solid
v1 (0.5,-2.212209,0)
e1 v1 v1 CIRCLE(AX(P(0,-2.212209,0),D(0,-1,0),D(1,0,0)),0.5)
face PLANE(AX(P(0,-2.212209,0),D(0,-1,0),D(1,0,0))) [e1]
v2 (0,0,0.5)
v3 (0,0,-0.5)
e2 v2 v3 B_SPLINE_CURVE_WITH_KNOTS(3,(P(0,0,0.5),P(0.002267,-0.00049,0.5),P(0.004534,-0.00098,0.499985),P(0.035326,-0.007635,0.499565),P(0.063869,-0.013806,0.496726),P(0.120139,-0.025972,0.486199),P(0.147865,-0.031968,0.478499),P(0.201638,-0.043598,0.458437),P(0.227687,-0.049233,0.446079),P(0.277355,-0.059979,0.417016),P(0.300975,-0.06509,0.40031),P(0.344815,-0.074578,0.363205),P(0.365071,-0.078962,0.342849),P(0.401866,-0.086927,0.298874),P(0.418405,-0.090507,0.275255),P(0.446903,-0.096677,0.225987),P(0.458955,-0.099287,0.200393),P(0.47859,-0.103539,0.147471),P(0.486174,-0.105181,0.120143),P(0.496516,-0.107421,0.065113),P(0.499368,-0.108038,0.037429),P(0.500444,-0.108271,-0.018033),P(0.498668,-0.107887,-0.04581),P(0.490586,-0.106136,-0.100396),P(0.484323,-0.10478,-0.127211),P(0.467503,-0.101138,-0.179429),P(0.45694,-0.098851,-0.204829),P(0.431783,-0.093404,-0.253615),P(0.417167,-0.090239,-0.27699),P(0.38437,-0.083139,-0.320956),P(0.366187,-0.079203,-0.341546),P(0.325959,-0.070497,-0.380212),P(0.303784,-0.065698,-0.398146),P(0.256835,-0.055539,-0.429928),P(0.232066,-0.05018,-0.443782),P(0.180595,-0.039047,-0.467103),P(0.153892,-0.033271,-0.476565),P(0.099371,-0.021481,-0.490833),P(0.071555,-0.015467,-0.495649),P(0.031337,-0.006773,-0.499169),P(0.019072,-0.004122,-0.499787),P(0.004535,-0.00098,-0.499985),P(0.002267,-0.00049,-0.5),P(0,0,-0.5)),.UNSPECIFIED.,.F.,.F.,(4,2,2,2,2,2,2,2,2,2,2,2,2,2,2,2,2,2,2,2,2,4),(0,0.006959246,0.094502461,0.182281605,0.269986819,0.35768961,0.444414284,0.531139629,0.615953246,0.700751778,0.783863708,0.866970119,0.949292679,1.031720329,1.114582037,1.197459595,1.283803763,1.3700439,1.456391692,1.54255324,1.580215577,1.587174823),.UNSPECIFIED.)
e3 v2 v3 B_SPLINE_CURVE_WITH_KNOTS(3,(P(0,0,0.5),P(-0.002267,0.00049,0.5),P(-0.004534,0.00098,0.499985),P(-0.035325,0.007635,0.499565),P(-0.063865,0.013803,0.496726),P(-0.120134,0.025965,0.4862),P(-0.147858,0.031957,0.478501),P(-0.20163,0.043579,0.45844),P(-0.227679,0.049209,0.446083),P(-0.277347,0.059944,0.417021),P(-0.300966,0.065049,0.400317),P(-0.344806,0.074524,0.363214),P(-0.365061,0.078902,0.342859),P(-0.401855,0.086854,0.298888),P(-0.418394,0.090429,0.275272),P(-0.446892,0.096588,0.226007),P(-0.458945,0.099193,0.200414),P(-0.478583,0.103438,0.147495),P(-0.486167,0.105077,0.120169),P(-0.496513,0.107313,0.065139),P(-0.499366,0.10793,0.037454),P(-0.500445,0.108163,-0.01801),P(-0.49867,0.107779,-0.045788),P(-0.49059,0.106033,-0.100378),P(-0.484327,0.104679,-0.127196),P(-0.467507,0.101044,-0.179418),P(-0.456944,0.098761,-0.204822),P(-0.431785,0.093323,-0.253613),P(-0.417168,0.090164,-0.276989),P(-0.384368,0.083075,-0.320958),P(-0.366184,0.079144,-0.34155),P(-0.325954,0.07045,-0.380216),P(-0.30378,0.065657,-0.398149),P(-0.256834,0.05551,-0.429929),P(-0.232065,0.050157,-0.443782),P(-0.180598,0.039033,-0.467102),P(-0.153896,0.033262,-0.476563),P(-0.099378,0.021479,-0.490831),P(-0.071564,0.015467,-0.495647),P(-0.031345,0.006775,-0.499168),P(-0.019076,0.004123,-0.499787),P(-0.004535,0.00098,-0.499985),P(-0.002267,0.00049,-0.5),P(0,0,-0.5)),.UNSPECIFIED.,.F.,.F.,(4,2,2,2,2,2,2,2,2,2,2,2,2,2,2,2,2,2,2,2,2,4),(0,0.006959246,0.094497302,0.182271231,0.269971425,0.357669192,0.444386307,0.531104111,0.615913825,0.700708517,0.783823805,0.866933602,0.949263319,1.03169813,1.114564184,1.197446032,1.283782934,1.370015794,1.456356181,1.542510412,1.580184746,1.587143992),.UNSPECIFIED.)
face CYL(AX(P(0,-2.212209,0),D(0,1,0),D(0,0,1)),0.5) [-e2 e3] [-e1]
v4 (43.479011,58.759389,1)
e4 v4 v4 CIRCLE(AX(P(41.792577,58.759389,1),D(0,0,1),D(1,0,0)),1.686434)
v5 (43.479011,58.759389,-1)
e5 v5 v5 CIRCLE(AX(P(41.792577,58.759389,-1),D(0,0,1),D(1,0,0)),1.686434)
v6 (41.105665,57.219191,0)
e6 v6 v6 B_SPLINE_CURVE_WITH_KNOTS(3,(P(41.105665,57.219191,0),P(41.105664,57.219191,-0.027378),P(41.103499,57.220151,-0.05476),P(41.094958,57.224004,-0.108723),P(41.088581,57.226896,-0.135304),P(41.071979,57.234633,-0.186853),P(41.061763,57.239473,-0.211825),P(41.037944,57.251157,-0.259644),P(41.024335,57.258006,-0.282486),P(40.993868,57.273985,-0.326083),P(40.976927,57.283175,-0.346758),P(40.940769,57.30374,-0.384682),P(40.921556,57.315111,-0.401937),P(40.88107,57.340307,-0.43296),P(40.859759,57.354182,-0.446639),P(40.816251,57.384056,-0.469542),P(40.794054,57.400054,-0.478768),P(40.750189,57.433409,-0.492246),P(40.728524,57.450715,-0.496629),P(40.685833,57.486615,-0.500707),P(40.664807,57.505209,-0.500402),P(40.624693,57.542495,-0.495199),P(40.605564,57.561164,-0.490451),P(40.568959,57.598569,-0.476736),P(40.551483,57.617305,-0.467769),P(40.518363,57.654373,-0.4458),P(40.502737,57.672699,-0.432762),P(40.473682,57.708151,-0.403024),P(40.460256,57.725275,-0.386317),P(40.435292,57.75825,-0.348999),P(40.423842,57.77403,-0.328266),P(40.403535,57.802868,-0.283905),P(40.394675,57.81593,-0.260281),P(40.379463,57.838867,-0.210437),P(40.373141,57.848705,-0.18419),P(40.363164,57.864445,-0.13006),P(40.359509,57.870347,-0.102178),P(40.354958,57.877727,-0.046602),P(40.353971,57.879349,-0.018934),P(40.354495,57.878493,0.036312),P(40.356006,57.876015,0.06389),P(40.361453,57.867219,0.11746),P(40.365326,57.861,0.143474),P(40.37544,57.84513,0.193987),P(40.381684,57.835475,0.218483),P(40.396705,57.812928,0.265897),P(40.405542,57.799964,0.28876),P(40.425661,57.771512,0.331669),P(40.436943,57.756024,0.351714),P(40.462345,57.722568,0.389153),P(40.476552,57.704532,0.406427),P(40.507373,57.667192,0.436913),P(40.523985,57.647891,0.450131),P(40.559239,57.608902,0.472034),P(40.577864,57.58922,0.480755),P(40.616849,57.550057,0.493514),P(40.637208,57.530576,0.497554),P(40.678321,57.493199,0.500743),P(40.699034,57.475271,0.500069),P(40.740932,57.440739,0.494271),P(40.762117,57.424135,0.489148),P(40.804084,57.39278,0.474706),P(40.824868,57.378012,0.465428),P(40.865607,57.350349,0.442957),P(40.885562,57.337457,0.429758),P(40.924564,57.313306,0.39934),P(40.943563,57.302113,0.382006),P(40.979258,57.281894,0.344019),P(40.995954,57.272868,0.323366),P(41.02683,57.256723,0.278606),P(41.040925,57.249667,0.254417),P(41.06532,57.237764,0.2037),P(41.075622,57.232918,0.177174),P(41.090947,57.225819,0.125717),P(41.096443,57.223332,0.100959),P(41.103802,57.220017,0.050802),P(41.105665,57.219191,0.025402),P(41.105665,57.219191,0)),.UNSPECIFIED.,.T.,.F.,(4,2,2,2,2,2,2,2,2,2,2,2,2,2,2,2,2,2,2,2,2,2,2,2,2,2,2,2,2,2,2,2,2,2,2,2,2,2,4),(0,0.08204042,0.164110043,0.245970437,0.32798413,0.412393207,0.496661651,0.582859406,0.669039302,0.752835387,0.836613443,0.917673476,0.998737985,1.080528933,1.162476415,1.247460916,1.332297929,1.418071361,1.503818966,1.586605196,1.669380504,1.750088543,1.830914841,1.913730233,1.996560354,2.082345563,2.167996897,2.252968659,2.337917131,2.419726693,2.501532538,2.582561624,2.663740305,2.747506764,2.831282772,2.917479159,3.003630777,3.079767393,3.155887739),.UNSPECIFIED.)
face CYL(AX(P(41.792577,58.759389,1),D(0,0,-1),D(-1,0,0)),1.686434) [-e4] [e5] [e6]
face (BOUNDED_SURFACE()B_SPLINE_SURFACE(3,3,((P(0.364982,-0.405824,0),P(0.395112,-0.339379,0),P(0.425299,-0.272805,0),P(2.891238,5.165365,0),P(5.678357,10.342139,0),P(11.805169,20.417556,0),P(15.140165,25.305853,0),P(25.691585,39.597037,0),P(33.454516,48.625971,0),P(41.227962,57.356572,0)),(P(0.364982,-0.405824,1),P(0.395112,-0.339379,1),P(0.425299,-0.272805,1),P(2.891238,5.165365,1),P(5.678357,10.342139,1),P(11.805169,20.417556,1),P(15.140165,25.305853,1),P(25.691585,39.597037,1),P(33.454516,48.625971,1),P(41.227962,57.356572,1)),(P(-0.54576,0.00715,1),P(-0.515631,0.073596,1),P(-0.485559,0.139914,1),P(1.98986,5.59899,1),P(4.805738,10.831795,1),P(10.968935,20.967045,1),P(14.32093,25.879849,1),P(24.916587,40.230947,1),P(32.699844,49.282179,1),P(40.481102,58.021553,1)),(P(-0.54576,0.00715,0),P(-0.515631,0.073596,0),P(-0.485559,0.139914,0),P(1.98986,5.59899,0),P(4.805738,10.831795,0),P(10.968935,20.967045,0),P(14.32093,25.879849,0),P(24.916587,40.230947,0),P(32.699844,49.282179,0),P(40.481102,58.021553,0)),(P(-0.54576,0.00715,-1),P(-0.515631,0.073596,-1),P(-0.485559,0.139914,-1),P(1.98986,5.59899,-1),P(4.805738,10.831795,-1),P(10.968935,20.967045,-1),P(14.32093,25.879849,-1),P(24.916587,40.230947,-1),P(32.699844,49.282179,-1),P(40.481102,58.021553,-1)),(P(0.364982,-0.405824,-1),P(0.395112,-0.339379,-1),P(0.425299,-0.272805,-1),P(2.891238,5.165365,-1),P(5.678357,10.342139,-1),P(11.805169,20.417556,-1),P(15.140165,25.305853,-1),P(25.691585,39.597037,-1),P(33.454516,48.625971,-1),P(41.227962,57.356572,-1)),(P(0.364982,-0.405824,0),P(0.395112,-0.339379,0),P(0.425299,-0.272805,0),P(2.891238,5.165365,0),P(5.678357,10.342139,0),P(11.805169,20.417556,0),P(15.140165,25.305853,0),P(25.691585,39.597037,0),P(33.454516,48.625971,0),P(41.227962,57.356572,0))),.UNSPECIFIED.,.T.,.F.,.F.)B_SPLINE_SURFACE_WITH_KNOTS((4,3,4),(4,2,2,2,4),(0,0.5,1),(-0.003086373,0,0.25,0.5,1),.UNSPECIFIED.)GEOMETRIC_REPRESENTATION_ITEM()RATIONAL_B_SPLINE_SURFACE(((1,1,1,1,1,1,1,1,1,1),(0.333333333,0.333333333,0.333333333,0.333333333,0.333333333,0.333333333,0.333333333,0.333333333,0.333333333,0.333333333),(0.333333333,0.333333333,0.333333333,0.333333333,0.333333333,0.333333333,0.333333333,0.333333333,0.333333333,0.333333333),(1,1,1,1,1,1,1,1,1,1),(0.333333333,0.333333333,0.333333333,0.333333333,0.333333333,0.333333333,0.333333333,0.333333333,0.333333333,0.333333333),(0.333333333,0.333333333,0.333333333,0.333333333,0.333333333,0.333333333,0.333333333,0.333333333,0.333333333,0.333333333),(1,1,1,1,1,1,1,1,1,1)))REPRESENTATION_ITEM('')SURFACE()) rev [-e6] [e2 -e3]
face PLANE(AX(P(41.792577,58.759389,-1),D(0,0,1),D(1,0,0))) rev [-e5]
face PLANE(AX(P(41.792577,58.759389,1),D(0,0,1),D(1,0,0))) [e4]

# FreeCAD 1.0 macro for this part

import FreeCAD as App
import Part
import Sketcher

doc = App.newDocument("Part")
body = doc.addObject("PartDesign::Body", "Body")

# Sketch on XZ plane
sketch1 = body.newObject("Sketcher::SketchObject", "Sketch")
sketch1.AttachmentSupport = (doc.getObject("XZ_Plane"), [""])
sketch1.MapMode = "FlatFace"
sketch1.AttachmentOffset = App.Placement(App.Vector(0, 0, 2.212209), App.Rotation())
sketch1.addGeometry(Part.Circle(App.Vector(0, 0, 0), App.Vector(0, 0, 1), 0.5), False)
sketch1.addConstraint(Sketcher.Constraint("Coincident", 0, 3, -1, 1))
sketch1.addConstraint(Sketcher.Constraint("Diameter", 0, 1.0))

# Sketch on XY plane
sketch2 = body.newObject("Sketcher::SketchObject", "Sketch001")
sketch2.AttachmentSupport = (doc.getObject("XY_Plane"), [""])
sketch2.MapMode = "FlatFace"
sketch2.addGeometry(Part.LineSegment(App.Vector(0, -2.212209, 0), App.Vector(0, 0, 0)), False)
sketch2.addGeometry(Part.BSplineCurve([App.Vector(0, 0, 0), App.Vector(9.762155, 21.52873, 0), App.Vector(25.299828, 40.219088, 0), App.Vector(40.854532, 57.689062, 0)], [4, 4], [0, 1], False, 3, [1, 1, 1, 1], False), False)
sketch2.addConstraint(Sketcher.Constraint("Block", 1))
sketch2.addConstraint(Sketcher.Constraint("Coincident", 0, 2, 1, 1))
sketch2.addConstraint(Sketcher.Constraint("Vertical", 0))
sketch2.addConstraint(Sketcher.Constraint("DistanceY", 0, 1, 0, 2, 2.212209))
doc.recompute()

additivepipe = body.newObject("PartDesign::AdditivePipe", "AdditivePipe")
additivepipe.Profile = sketch1
additivepipe.Spine = (sketch2, ["Edge1", "Edge2"])
additivepipe.Transition = "Right corner"

# Sketch on XY plane
sketch3 = body.newObject("Sketcher::SketchObject", "Sketch002")
sketch3.AttachmentSupport = (doc.getObject("XY_Plane"), [""])
sketch3.MapMode = "FlatFace"
sketch3.addGeometry(Part.Circle(App.Vector(41.792577, 58.759389, 0), App.Vector(0, 0, 1), 1.686434), False)
sketch3.addConstraint(Sketcher.Constraint("Diameter", 0, 3.372868))
sketch3.addConstraint(Sketcher.Constraint("DistanceY", -1, 1, 0, 3, 58.759389))
sketch3.addConstraint(Sketcher.Constraint("DistanceX", -1, 1, 0, 3, 41.792577))
pad1 = body.newObject("PartDesign::Pad", "Pad")
pad1.Profile = sketch3
pad1.Length = 2
pad1.Midplane = True

doc.recompute()
